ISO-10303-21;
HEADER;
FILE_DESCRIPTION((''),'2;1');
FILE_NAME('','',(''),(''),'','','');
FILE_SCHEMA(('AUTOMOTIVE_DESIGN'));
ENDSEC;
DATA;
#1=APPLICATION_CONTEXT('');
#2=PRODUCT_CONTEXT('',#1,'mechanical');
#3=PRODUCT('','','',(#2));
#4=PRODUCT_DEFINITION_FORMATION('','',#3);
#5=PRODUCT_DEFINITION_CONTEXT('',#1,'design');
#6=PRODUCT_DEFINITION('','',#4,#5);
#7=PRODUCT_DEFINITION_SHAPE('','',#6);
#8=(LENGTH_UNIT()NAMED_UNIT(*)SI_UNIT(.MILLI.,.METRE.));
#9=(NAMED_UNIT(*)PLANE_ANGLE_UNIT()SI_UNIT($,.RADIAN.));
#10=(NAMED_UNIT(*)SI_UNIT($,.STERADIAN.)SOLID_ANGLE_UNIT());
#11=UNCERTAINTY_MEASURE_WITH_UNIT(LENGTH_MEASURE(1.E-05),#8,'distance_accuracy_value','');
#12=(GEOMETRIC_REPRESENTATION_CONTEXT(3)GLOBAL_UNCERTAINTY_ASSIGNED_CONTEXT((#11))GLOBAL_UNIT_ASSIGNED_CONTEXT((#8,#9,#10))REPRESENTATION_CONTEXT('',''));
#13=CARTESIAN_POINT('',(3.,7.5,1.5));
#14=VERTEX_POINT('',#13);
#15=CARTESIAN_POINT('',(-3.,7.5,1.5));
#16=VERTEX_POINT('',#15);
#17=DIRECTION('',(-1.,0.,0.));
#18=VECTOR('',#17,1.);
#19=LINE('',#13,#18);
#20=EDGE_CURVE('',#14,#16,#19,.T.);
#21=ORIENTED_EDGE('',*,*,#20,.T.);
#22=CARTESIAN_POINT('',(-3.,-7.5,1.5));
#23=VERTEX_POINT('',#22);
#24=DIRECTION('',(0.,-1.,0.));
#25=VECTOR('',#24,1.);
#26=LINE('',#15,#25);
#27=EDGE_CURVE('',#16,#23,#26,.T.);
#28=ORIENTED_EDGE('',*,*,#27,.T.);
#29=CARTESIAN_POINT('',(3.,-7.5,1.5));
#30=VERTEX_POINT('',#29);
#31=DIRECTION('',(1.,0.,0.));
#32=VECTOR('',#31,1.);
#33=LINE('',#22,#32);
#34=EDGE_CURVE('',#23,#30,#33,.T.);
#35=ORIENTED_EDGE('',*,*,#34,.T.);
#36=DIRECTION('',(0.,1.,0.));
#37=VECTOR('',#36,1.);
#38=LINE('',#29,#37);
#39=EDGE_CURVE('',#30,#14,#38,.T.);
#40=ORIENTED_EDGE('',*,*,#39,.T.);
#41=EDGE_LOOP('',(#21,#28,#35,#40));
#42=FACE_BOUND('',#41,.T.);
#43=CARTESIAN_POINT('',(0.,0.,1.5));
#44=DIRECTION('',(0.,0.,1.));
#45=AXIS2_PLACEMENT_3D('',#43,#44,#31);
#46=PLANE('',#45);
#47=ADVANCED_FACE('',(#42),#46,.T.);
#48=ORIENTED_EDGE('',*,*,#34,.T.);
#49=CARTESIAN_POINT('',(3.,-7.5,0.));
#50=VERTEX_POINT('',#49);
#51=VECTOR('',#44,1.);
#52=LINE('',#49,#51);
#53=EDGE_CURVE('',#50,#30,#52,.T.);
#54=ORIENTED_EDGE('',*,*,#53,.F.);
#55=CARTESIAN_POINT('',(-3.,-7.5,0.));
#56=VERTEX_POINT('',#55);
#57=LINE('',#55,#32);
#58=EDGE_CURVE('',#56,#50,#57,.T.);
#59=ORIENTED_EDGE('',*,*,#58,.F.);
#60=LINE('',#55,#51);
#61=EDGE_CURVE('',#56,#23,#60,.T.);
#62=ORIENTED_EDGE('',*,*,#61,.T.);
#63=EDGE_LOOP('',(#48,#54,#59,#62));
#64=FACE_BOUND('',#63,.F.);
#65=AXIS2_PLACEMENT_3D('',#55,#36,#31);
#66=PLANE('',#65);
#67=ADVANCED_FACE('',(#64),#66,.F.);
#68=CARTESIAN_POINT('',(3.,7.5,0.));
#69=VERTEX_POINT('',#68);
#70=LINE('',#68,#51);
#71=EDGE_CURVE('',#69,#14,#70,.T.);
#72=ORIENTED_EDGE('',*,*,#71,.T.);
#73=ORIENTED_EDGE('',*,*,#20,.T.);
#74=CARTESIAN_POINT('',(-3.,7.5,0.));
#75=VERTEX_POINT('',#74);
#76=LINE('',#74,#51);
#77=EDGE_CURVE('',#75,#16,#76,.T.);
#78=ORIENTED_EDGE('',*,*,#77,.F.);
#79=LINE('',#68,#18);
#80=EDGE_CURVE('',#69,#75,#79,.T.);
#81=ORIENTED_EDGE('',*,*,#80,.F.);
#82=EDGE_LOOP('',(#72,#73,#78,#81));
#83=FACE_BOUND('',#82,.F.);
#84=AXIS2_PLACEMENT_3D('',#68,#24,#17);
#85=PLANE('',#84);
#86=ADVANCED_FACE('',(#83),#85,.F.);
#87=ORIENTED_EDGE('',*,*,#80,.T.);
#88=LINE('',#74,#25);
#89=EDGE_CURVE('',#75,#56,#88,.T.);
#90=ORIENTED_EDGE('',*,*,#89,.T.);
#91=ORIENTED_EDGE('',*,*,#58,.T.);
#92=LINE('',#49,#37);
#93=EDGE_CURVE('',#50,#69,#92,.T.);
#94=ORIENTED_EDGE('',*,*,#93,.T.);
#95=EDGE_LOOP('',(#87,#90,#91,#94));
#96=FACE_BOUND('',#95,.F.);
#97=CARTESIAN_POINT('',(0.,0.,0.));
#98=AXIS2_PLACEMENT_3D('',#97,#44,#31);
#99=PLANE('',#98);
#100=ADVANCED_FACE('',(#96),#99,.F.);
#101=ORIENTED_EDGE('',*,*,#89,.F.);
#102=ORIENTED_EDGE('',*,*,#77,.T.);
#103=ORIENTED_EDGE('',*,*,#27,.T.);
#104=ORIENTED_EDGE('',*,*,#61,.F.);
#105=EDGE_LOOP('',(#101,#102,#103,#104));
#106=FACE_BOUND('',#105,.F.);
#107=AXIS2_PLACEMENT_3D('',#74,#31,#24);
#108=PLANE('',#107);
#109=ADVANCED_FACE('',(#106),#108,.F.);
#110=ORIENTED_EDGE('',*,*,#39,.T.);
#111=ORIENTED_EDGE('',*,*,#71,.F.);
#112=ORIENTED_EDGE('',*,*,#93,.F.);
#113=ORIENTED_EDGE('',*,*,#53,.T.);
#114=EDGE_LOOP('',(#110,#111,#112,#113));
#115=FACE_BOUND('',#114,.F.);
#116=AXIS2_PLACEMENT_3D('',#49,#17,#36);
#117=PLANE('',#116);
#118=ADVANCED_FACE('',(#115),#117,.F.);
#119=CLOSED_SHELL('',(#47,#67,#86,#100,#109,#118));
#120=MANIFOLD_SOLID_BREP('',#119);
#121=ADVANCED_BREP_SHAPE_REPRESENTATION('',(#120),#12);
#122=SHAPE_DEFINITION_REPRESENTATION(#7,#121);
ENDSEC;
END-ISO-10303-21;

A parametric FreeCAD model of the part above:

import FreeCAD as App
import Part
import Sketcher

V = App.Vector
Q = App.Units.Quantity


def add_polygon(sketch, points):
    """Adds a closed chain of lines whose ends are joined by coincident constraints."""
    first, n = sketch.GeometryCount, len(points)
    for a, b in zip(points, points[1:] + points[:1]):
        sketch.addGeometry(Part.LineSegment(App.Vector(*a, 0), App.Vector(*b, 0)), False)
    for i in range(n):
        sketch.addConstraint(Sketcher.Constraint("Coincident", first + i, 2, first + (i + 1) % n, 1))

doc = App.newDocument("Part")
params = doc.addObject("Spreadsheet::Sheet", "Params")
for row, (alias, value) in enumerate([
    ("sketch1_width", "6 mm"),
    ("sketch1_height", "15 mm"),
    ("pad1_length", "1.5 mm"),
], start=1):
    params.set(f"A{row}", alias)
    params.set(f"B{row}", "=" + value)
    params.setAlias(f"B{row}", alias)

body = doc.addObject("PartDesign::Body", "Body")

# Sketch on XY plane
sketch1 = doc.addObject("Sketcher::SketchObject", "Sketch")
body.addObject(sketch1)
sketch1.AttachmentSupport = (doc.XY_Plane, [""])
sketch1.MapMode = "FlatFace"
add_polygon(sketch1, [(-3, 8), (-3, -8), (3, -8), (3, 8)])  # lines 0-3
sketch1.addConstraint(Sketcher.Constraint("Vertical", 0))
sketch1.addConstraint(Sketcher.Constraint("Horizontal", 1))
sketch1.addConstraint(Sketcher.Constraint("Vertical", 2))
sketch1.addConstraint(Sketcher.Constraint("Horizontal", 3))
sketch1.addConstraint(Sketcher.Constraint("Symmetric", 0, 2, 2, 2, -1, 1))
sketch1.addConstraint(Sketcher.Constraint("DistanceX", 1, 1, 1, 2, Q("6 mm")))
sketch1.addConstraint(Sketcher.Constraint("DistanceY", 0, 2, 0, 1, Q("15 mm")))
sketch1.setExpression("Constraints[9]", "Params.sketch1_width")
sketch1.setExpression("Constraints[10]", "Params.sketch1_height")
pad1 = doc.addObject("PartDesign::Pad", "Pad")
body.addObject(pad1)
pad1.Profile = sketch1
pad1.setExpression("Length", "Params.pad1_length")

doc.recompute()
